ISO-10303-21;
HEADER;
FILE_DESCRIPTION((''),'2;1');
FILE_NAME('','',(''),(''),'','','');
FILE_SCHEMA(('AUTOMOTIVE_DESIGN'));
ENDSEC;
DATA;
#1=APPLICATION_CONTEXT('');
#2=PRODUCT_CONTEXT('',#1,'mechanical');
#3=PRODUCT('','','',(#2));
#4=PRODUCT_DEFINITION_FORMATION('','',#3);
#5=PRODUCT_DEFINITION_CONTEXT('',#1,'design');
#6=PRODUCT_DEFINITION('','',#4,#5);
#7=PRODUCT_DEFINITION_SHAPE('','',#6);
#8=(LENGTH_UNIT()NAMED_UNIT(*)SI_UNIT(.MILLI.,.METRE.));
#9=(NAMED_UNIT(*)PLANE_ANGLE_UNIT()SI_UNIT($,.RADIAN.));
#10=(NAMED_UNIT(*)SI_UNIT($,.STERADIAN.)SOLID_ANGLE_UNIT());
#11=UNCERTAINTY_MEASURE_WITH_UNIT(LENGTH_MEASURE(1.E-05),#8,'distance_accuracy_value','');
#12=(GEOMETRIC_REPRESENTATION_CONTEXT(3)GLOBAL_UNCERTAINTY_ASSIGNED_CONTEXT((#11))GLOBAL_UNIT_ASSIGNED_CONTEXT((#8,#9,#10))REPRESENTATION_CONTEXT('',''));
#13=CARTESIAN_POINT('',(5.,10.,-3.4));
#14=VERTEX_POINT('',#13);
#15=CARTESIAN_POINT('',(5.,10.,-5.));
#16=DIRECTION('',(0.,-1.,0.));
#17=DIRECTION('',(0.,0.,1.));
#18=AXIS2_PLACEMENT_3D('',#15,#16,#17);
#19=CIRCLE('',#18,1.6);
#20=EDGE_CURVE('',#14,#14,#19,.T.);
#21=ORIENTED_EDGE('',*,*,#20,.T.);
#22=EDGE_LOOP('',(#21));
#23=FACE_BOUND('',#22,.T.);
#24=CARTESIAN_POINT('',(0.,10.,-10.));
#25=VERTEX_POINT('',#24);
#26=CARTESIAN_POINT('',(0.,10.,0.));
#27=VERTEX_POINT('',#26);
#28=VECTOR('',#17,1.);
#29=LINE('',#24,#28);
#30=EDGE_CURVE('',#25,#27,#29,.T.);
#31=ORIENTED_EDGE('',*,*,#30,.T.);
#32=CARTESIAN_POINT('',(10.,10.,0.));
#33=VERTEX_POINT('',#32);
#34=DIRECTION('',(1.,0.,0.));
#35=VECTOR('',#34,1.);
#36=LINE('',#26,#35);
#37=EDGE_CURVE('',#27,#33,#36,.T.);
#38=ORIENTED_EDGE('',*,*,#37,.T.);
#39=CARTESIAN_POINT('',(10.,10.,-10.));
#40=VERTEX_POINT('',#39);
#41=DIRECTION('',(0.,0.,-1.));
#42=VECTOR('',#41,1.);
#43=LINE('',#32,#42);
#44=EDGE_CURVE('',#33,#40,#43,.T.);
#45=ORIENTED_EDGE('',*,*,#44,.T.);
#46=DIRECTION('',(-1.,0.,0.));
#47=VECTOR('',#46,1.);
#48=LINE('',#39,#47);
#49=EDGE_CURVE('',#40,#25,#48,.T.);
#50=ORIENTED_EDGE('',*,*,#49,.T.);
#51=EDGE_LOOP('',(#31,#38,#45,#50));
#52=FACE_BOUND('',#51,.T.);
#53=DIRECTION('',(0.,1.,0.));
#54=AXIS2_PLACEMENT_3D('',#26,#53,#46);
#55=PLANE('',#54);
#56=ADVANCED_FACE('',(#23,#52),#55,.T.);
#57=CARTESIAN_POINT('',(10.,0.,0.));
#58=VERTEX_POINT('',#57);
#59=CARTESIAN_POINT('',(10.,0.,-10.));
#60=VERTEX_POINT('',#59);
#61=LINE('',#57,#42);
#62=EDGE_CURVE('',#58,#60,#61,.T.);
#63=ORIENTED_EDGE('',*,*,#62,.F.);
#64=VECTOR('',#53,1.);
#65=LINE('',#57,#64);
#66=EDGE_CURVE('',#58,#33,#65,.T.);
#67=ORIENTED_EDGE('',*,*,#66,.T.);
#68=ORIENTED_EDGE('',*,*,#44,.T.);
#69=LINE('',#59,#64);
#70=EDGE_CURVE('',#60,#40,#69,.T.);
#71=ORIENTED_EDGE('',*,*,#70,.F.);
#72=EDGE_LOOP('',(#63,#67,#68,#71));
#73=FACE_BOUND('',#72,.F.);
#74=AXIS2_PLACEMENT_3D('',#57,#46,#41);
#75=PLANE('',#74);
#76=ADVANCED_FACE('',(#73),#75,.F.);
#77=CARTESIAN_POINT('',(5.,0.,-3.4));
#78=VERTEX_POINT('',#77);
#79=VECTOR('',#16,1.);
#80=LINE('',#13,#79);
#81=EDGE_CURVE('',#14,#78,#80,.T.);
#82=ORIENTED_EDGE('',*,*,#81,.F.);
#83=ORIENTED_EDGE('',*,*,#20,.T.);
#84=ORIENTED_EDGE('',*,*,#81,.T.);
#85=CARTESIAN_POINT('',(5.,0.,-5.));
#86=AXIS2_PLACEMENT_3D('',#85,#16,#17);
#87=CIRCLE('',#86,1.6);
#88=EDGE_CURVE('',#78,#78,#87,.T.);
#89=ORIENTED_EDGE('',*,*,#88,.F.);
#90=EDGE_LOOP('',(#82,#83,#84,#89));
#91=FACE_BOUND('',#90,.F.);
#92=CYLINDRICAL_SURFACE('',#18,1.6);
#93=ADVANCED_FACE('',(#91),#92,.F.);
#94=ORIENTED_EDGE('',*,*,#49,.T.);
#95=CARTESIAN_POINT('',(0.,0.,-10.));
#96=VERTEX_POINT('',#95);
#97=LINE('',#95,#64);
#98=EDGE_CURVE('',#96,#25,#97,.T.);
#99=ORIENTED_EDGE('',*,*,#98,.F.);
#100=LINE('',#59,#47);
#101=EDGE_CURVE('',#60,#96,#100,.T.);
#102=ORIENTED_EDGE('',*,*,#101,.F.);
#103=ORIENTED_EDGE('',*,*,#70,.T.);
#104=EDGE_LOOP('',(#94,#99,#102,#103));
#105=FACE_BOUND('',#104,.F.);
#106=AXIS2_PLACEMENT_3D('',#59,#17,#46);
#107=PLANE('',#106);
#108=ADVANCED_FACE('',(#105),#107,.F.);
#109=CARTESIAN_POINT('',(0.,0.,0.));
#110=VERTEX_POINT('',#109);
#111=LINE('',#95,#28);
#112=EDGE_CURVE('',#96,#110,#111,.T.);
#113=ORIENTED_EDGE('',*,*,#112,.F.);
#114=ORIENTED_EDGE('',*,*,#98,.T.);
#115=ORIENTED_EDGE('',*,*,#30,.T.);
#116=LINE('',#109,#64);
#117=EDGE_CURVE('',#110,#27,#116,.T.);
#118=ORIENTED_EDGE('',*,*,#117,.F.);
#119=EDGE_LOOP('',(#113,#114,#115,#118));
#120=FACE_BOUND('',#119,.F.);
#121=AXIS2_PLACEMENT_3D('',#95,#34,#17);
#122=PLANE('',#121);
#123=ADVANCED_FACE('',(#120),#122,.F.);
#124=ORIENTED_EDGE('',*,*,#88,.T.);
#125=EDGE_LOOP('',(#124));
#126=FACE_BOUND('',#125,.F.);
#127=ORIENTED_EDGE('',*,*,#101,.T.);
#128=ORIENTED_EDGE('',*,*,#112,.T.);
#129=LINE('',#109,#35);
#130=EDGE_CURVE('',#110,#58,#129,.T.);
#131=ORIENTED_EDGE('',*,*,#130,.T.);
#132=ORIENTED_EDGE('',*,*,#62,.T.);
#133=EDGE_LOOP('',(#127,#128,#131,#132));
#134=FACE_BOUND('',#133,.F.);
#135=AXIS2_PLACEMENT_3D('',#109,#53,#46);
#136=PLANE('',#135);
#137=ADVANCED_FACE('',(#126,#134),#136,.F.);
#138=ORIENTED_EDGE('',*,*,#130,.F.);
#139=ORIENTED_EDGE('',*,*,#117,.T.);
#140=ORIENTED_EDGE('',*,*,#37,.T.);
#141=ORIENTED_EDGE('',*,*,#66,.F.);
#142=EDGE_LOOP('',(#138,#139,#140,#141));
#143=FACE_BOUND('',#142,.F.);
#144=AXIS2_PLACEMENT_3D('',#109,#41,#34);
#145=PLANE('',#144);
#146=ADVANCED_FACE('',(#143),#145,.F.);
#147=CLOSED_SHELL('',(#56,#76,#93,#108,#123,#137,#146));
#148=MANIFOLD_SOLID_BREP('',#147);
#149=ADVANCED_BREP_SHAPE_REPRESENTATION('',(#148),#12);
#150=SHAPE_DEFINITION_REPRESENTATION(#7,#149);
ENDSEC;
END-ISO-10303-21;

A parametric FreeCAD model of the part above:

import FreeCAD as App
import Part
import Sketcher

V = App.Vector

doc = App.newDocument("Part")
body = doc.addObject("PartDesign::Body", "Body")

sketch1 = body.newObject("Sketcher::SketchObject", "Sketch")
sketch1.AttachmentSupport = (doc.getObject("XZ_Plane"), [""])
sketch1.MapMode = "FlatFace"
sketch1.addGeometry(Part.LineSegment(V(0, -10, 0), V(0, 0, 0)), False)
sketch1.addGeometry(Part.LineSegment(V(0, 0, 0), V(10, 0, 0)), False)
sketch1.addGeometry(Part.LineSegment(V(10, 0, 0), V(10, -10, 0)), False)
sketch1.addGeometry(Part.LineSegment(V(10, -10, 0), V(0, -10, 0)), False)
sketch1.addConstraint(Sketcher.Constraint("Coincident", 0, 2, 1, 1))
sketch1.addConstraint(Sketcher.Constraint("Coincident", 1, 2, 2, 1))
sketch1.addConstraint(Sketcher.Constraint("Coincident", 2, 2, 3, 1))
sketch1.addConstraint(Sketcher.Constraint("Coincident", 3, 2, 0, 1))
sketch1.addConstraint(Sketcher.Constraint("Vertical", 0))
sketch1.addConstraint(Sketcher.Constraint("Horizontal", 1))
sketch1.addConstraint(Sketcher.Constraint("Vertical", 2))
sketch1.addConstraint(Sketcher.Constraint("Horizontal", 3))
sketch1.addConstraint(Sketcher.Constraint("Coincident", 0, 2, -1, 1))
sketch1.addConstraint(Sketcher.Constraint("Equal", 3, 0))
sketch1.addConstraint(Sketcher.Constraint("DistanceX", 1, 1, 1, 2, 10.0))
pad1 = body.newObject("PartDesign::Pad", "Pad")
pad1.Profile = sketch1
pad1.Length = 10
pad1.Reversed = True

sketch2 = body.newObject("Sketcher::SketchObject", "Sketch001")
sketch2.AttachmentSupport = (doc.getObject("XZ_Plane"), [""])
sketch2.MapMode = "FlatFace"
sketch2.AttachmentOffset = App.Placement(V(0, 0, -10), App.Rotation())
sketch2.addGeometry(Part.Circle(V(5, -5, 0), V(0, 0, 1), 1.6), False)
sketch2.addConstraint(Sketcher.Constraint("Diameter", 0, 3.2))
sketch2.addConstraint(Sketcher.Constraint("DistanceX", -1, 1, 0, 3, 5.0))
sketch2.addConstraint(Sketcher.Constraint("DistanceY", 0, 3, -1, 1, 5.0))
doc.recompute()
hole = body.newObject("PartDesign::Hole", "Hole")
hole.Profile = sketch2
hole.ThreadType = "None"
hole.Diameter = 3.2
hole.DepthType = "ThroughAll"
hole.Reversed = True

doc.recompute()
